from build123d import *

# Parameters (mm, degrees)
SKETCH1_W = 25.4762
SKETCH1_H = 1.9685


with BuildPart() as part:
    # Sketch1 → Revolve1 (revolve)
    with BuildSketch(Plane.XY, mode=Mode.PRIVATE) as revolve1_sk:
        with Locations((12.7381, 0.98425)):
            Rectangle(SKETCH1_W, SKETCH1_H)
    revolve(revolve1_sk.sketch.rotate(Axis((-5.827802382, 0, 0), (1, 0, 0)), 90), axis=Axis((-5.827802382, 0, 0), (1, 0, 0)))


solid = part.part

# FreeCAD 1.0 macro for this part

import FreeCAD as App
import Part
import Sketcher
from FreeCAD import Vector
Q = App.Units.Quantity

doc = App.newDocument("Part")
body = doc.addObject("PartDesign::Body", "Body")

# Sketch on XY plane
sketch1 = body.newObject("Sketcher::SketchObject", "Sketch")
sketch1.AttachmentSupport = (doc.getObject("XY_Plane"), [""])
sketch1.MapMode = "FlatFace"
sketch1.addGeometry([
    Part.LineSegment(Vector(0, 1.9685, 0), Vector(0, 0, 0)),
    Part.LineSegment(Vector(0, 0, 0), Vector(25.4762, 0, 0)),
    Part.LineSegment(Vector(25.4762, 0, 0), Vector(25.4762, 1.9685, 0)),
    Part.LineSegment(Vector(25.4762, 1.9685, 0), Vector(0, 1.9685, 0)),
], False)
sketch1.addConstraint([
    Sketcher.Constraint("Coincident", 0, 2, 1, 1),
    Sketcher.Constraint("Coincident", 1, 2, 2, 1),
    Sketcher.Constraint("Coincident", 2, 2, 3, 1),
    Sketcher.Constraint("Coincident", 3, 2, 0, 1),
    Sketcher.Constraint("Vertical", 0),
    Sketcher.Constraint("Horizontal", 1),
    Sketcher.Constraint("Vertical", 2),
    Sketcher.Constraint("Horizontal", 3),
    Sketcher.Constraint("Coincident", 0, 2, -1, 1),
    Sketcher.Constraint("DistanceX", 1, 1, 1, 2, Q("1.003 in")),
    Sketcher.Constraint("DistanceY", 0, 2, 0, 1, Q("0.0775 in")),
])
revolution = body.newObject("PartDesign::Revolution", "Revolution")
revolution.Profile = sketch1
revolution.ReferenceAxis = (sketch1, ["H_Axis"])
revolution.Angle = 360

doc.recompute()
